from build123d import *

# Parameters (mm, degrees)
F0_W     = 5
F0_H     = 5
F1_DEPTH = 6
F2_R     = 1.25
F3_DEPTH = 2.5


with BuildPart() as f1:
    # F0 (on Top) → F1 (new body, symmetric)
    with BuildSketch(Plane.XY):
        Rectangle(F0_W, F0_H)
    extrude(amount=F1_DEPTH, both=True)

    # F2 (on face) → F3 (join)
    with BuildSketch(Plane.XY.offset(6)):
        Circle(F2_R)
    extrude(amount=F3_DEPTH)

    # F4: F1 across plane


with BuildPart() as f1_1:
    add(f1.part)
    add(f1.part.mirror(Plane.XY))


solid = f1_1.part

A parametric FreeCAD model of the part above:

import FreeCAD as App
import Part
import Sketcher

V = App.Vector
Q = App.Units.Quantity


def add_polygon(sketch, points):
    """Adds a closed chain of lines whose ends are joined by coincident constraints."""
    first, n = sketch.GeometryCount, len(points)
    for a, b in zip(points, points[1:] + points[:1]):
        sketch.addGeometry(Part.LineSegment(App.Vector(*a, 0), App.Vector(*b, 0)), False)
    for i in range(n):
        sketch.addConstraint(Sketcher.Constraint("Coincident", first + i, 2, first + (i + 1) % n, 1))

doc = App.newDocument("Part")
body = doc.addObject("PartDesign::Body", "Body")

sketch1 = body.newObject("Sketcher::SketchObject", "Sketch")
sketch1.AttachmentSupport = (doc.getObject("XY_Plane"), [""])
sketch1.MapMode = "FlatFace"
add_polygon(sketch1, [(-2, 2), (-2, -2), (2, -2), (2, 2)])
sketch1.addConstraint(Sketcher.Constraint("Vertical", 0))
sketch1.addConstraint(Sketcher.Constraint("Horizontal", 1))
sketch1.addConstraint(Sketcher.Constraint("Vertical", 2))
sketch1.addConstraint(Sketcher.Constraint("Horizontal", 3))
sketch1.addConstraint(Sketcher.Constraint("Symmetric", 0, 2, 2, 2, -1, 1))
sketch1.addConstraint(Sketcher.Constraint("Equal", 3, 0))
sketch1.addConstraint(Sketcher.Constraint("DistanceX", 1, 1, 1, 2, Q("5 mm")))
pad1 = body.newObject("PartDesign::Pad", "Pad")
pad1.Profile = sketch1
pad1.Length = 12
pad1.Midplane = True

sketch2 = body.newObject("Sketcher::SketchObject", "Sketch001")
sketch2.AttachmentSupport = (doc.getObject("XY_Plane"), [""])
sketch2.MapMode = "FlatFace"
sketch2.AttachmentOffset = App.Placement(V(0, 0, 6), App.Rotation())
sketch2.addGeometry(Part.Circle(V(0, 0, 0), V(0, 0, 1), 1.2), False)
sketch2.addConstraint(Sketcher.Constraint("Coincident", 0, 3, -1, 1))
sketch2.addConstraint(Sketcher.Constraint("Diameter", 0, Q("2.5 mm")))
pad2 = body.newObject("PartDesign::Pad", "Pad001")
pad2.Profile = sketch2
pad2.Length = 2.5
body2 = doc.addObject("PartDesign::Body", "Body001")
doc.recompute()

body2.BaseFeature = body
doc.recompute()

mirroring = doc.addObject("Part::Mirroring", "Mirroring")
mirroring.Source = body
mirroring.Base = V(0, 0, 0)
mirroring.Normal = V(0, 0, 1)
body3 = doc.addObject("PartDesign::Body", "Body002")
body3.BaseFeature = mirroring
boolean = body2.newObject("PartDesign::Boolean", "Boolean")
boolean.Type = "Fuse"
boolean.addObjects([body3])
doc.recompute()
mirroring.Visibility = False

doc.recompute()
